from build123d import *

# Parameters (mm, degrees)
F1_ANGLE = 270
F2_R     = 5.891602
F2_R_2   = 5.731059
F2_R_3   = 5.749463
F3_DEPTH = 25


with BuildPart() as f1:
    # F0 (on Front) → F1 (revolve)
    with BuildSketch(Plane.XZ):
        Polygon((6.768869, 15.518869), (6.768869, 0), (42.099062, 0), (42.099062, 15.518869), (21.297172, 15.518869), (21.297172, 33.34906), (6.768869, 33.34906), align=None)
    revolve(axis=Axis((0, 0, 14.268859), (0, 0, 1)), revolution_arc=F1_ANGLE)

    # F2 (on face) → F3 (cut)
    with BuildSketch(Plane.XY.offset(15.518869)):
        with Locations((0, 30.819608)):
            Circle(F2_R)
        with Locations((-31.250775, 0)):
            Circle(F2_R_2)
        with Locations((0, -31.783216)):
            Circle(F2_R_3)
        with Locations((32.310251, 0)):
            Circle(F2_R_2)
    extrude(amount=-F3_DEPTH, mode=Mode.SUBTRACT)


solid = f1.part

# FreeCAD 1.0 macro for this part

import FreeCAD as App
import Part
import Sketcher

V = App.Vector
Q = App.Units.Quantity

doc = App.newDocument("Part")
body = doc.addObject("PartDesign::Body", "Body")

# Sketch on XZ plane
sketch1 = doc.addObject("Sketcher::SketchObject", "Sketch")
body.addObject(sketch1)
sketch1.AttachmentSupport = (doc.XZ_Plane, [""])
sketch1.MapMode = "FlatFace"
sketch1.addGeometry([
    Part.LineSegment(V(7, 0, 0), V(42, 0, 0)),  # 0
    Part.LineSegment(V(42, 0, 0), V(42, 16, 0)),  # 1
    Part.LineSegment(V(42, 16, 0), V(21, 16, 0)),  # 2
    Part.LineSegment(V(21, 16, 0), V(21, 33, 0)),  # 3
    Part.LineSegment(V(21, 33, 0), V(7, 33, 0)),  # 4
    Part.LineSegment(V(7, 33, 0), V(7, 0, 0)),  # 5
], False)
sketch1.addConstraint([
    Sketcher.Constraint("Coincident", 0, 2, 1, 1),
    Sketcher.Constraint("Coincident", 1, 2, 2, 1),
    Sketcher.Constraint("Coincident", 2, 2, 3, 1),
    Sketcher.Constraint("Coincident", 3, 2, 4, 1),
    Sketcher.Constraint("Coincident", 4, 2, 5, 1),
    Sketcher.Constraint("Coincident", 5, 2, 0, 1),
    Sketcher.Constraint("Horizontal", 0),
    Sketcher.Constraint("Vertical", 1),
    Sketcher.Constraint("Horizontal", 2),
    Sketcher.Constraint("Vertical", 3),
    Sketcher.Constraint("Horizontal", 4),
    Sketcher.Constraint("Vertical", 5),
    Sketcher.Constraint("PointOnObject", 0, 2, -1),
    Sketcher.Constraint("DistanceX", 2, 2, 2, 1, Q("20.80189 mm")),
    Sketcher.Constraint("DistanceY", 1, 1, 1, 2, Q("15.518869 mm")),
    Sketcher.Constraint("DistanceY", 3, 1, 3, 2, Q("17.830191 mm")),
    Sketcher.Constraint("DistanceX", 0, 1, 0, 2, Q("35.330193 mm")),
    Sketcher.Constraint("DistanceX", -1, 1, 2, 2, Q("21.297172 mm")),
])
revolution = doc.addObject("PartDesign::Revolution", "Revolution")
body.addObject(revolution)
revolution.Profile = sketch1
revolution.ReferenceAxis = (sketch1, ["V_Axis"])
revolution.Angle = 270

# Sketch on XY plane
sketch2 = doc.addObject("Sketcher::SketchObject", "Sketch001")
body.addObject(sketch2)
sketch2.AttachmentSupport = (doc.XY_Plane, [""])
sketch2.MapMode = "FlatFace"
sketch2.AttachmentOffset = App.Placement(V(0, 0, 15.518869), App.Rotation())
sketch2.addGeometry([
    Part.Circle(V(0, 31, 0), V(0, 0, 1), 6),
    Part.Circle(V(-31, 0, 0), V(0, 0, 1), 6),
    Part.Circle(V(0, -32, 0), V(0, 0, 1), 6),
    Part.Circle(V(32, 0, 0), V(0, 0, 1), 6),
], False)
sketch2.addConstraint([
    Sketcher.Constraint("Equal", 1, 3),
    Sketcher.Constraint("PointOnObject", 0, 3, -2),
    Sketcher.Constraint("PointOnObject", 1, 3, -1),
    Sketcher.Constraint("PointOnObject", 2, 3, -2),
    Sketcher.Constraint("PointOnObject", 3, 3, -1),
    Sketcher.Constraint("Diameter", 0, Q("11.783204 mm")),
    Sketcher.Constraint("Diameter", 1, Q("11.462118 mm")),
    Sketcher.Constraint("Diameter", 2, Q("11.498926 mm")),
    Sketcher.Constraint("DistanceX", -1, 1, 3, 3, Q("32.310251 mm")),
    Sketcher.Constraint("DistanceY", -1, 1, 0, 3, Q("30.819608 mm")),
    Sketcher.Constraint("DistanceX", 1, 3, -1, 1, Q("31.250775 mm")),
    Sketcher.Constraint("DistanceY", 2, 3, -1, 1, Q("31.783216 mm")),
])
pocket1 = doc.addObject("PartDesign::Pocket", "Pocket")
body.addObject(pocket1)
pocket1.Profile = sketch2
pocket1.Length = 25

doc.recompute()
